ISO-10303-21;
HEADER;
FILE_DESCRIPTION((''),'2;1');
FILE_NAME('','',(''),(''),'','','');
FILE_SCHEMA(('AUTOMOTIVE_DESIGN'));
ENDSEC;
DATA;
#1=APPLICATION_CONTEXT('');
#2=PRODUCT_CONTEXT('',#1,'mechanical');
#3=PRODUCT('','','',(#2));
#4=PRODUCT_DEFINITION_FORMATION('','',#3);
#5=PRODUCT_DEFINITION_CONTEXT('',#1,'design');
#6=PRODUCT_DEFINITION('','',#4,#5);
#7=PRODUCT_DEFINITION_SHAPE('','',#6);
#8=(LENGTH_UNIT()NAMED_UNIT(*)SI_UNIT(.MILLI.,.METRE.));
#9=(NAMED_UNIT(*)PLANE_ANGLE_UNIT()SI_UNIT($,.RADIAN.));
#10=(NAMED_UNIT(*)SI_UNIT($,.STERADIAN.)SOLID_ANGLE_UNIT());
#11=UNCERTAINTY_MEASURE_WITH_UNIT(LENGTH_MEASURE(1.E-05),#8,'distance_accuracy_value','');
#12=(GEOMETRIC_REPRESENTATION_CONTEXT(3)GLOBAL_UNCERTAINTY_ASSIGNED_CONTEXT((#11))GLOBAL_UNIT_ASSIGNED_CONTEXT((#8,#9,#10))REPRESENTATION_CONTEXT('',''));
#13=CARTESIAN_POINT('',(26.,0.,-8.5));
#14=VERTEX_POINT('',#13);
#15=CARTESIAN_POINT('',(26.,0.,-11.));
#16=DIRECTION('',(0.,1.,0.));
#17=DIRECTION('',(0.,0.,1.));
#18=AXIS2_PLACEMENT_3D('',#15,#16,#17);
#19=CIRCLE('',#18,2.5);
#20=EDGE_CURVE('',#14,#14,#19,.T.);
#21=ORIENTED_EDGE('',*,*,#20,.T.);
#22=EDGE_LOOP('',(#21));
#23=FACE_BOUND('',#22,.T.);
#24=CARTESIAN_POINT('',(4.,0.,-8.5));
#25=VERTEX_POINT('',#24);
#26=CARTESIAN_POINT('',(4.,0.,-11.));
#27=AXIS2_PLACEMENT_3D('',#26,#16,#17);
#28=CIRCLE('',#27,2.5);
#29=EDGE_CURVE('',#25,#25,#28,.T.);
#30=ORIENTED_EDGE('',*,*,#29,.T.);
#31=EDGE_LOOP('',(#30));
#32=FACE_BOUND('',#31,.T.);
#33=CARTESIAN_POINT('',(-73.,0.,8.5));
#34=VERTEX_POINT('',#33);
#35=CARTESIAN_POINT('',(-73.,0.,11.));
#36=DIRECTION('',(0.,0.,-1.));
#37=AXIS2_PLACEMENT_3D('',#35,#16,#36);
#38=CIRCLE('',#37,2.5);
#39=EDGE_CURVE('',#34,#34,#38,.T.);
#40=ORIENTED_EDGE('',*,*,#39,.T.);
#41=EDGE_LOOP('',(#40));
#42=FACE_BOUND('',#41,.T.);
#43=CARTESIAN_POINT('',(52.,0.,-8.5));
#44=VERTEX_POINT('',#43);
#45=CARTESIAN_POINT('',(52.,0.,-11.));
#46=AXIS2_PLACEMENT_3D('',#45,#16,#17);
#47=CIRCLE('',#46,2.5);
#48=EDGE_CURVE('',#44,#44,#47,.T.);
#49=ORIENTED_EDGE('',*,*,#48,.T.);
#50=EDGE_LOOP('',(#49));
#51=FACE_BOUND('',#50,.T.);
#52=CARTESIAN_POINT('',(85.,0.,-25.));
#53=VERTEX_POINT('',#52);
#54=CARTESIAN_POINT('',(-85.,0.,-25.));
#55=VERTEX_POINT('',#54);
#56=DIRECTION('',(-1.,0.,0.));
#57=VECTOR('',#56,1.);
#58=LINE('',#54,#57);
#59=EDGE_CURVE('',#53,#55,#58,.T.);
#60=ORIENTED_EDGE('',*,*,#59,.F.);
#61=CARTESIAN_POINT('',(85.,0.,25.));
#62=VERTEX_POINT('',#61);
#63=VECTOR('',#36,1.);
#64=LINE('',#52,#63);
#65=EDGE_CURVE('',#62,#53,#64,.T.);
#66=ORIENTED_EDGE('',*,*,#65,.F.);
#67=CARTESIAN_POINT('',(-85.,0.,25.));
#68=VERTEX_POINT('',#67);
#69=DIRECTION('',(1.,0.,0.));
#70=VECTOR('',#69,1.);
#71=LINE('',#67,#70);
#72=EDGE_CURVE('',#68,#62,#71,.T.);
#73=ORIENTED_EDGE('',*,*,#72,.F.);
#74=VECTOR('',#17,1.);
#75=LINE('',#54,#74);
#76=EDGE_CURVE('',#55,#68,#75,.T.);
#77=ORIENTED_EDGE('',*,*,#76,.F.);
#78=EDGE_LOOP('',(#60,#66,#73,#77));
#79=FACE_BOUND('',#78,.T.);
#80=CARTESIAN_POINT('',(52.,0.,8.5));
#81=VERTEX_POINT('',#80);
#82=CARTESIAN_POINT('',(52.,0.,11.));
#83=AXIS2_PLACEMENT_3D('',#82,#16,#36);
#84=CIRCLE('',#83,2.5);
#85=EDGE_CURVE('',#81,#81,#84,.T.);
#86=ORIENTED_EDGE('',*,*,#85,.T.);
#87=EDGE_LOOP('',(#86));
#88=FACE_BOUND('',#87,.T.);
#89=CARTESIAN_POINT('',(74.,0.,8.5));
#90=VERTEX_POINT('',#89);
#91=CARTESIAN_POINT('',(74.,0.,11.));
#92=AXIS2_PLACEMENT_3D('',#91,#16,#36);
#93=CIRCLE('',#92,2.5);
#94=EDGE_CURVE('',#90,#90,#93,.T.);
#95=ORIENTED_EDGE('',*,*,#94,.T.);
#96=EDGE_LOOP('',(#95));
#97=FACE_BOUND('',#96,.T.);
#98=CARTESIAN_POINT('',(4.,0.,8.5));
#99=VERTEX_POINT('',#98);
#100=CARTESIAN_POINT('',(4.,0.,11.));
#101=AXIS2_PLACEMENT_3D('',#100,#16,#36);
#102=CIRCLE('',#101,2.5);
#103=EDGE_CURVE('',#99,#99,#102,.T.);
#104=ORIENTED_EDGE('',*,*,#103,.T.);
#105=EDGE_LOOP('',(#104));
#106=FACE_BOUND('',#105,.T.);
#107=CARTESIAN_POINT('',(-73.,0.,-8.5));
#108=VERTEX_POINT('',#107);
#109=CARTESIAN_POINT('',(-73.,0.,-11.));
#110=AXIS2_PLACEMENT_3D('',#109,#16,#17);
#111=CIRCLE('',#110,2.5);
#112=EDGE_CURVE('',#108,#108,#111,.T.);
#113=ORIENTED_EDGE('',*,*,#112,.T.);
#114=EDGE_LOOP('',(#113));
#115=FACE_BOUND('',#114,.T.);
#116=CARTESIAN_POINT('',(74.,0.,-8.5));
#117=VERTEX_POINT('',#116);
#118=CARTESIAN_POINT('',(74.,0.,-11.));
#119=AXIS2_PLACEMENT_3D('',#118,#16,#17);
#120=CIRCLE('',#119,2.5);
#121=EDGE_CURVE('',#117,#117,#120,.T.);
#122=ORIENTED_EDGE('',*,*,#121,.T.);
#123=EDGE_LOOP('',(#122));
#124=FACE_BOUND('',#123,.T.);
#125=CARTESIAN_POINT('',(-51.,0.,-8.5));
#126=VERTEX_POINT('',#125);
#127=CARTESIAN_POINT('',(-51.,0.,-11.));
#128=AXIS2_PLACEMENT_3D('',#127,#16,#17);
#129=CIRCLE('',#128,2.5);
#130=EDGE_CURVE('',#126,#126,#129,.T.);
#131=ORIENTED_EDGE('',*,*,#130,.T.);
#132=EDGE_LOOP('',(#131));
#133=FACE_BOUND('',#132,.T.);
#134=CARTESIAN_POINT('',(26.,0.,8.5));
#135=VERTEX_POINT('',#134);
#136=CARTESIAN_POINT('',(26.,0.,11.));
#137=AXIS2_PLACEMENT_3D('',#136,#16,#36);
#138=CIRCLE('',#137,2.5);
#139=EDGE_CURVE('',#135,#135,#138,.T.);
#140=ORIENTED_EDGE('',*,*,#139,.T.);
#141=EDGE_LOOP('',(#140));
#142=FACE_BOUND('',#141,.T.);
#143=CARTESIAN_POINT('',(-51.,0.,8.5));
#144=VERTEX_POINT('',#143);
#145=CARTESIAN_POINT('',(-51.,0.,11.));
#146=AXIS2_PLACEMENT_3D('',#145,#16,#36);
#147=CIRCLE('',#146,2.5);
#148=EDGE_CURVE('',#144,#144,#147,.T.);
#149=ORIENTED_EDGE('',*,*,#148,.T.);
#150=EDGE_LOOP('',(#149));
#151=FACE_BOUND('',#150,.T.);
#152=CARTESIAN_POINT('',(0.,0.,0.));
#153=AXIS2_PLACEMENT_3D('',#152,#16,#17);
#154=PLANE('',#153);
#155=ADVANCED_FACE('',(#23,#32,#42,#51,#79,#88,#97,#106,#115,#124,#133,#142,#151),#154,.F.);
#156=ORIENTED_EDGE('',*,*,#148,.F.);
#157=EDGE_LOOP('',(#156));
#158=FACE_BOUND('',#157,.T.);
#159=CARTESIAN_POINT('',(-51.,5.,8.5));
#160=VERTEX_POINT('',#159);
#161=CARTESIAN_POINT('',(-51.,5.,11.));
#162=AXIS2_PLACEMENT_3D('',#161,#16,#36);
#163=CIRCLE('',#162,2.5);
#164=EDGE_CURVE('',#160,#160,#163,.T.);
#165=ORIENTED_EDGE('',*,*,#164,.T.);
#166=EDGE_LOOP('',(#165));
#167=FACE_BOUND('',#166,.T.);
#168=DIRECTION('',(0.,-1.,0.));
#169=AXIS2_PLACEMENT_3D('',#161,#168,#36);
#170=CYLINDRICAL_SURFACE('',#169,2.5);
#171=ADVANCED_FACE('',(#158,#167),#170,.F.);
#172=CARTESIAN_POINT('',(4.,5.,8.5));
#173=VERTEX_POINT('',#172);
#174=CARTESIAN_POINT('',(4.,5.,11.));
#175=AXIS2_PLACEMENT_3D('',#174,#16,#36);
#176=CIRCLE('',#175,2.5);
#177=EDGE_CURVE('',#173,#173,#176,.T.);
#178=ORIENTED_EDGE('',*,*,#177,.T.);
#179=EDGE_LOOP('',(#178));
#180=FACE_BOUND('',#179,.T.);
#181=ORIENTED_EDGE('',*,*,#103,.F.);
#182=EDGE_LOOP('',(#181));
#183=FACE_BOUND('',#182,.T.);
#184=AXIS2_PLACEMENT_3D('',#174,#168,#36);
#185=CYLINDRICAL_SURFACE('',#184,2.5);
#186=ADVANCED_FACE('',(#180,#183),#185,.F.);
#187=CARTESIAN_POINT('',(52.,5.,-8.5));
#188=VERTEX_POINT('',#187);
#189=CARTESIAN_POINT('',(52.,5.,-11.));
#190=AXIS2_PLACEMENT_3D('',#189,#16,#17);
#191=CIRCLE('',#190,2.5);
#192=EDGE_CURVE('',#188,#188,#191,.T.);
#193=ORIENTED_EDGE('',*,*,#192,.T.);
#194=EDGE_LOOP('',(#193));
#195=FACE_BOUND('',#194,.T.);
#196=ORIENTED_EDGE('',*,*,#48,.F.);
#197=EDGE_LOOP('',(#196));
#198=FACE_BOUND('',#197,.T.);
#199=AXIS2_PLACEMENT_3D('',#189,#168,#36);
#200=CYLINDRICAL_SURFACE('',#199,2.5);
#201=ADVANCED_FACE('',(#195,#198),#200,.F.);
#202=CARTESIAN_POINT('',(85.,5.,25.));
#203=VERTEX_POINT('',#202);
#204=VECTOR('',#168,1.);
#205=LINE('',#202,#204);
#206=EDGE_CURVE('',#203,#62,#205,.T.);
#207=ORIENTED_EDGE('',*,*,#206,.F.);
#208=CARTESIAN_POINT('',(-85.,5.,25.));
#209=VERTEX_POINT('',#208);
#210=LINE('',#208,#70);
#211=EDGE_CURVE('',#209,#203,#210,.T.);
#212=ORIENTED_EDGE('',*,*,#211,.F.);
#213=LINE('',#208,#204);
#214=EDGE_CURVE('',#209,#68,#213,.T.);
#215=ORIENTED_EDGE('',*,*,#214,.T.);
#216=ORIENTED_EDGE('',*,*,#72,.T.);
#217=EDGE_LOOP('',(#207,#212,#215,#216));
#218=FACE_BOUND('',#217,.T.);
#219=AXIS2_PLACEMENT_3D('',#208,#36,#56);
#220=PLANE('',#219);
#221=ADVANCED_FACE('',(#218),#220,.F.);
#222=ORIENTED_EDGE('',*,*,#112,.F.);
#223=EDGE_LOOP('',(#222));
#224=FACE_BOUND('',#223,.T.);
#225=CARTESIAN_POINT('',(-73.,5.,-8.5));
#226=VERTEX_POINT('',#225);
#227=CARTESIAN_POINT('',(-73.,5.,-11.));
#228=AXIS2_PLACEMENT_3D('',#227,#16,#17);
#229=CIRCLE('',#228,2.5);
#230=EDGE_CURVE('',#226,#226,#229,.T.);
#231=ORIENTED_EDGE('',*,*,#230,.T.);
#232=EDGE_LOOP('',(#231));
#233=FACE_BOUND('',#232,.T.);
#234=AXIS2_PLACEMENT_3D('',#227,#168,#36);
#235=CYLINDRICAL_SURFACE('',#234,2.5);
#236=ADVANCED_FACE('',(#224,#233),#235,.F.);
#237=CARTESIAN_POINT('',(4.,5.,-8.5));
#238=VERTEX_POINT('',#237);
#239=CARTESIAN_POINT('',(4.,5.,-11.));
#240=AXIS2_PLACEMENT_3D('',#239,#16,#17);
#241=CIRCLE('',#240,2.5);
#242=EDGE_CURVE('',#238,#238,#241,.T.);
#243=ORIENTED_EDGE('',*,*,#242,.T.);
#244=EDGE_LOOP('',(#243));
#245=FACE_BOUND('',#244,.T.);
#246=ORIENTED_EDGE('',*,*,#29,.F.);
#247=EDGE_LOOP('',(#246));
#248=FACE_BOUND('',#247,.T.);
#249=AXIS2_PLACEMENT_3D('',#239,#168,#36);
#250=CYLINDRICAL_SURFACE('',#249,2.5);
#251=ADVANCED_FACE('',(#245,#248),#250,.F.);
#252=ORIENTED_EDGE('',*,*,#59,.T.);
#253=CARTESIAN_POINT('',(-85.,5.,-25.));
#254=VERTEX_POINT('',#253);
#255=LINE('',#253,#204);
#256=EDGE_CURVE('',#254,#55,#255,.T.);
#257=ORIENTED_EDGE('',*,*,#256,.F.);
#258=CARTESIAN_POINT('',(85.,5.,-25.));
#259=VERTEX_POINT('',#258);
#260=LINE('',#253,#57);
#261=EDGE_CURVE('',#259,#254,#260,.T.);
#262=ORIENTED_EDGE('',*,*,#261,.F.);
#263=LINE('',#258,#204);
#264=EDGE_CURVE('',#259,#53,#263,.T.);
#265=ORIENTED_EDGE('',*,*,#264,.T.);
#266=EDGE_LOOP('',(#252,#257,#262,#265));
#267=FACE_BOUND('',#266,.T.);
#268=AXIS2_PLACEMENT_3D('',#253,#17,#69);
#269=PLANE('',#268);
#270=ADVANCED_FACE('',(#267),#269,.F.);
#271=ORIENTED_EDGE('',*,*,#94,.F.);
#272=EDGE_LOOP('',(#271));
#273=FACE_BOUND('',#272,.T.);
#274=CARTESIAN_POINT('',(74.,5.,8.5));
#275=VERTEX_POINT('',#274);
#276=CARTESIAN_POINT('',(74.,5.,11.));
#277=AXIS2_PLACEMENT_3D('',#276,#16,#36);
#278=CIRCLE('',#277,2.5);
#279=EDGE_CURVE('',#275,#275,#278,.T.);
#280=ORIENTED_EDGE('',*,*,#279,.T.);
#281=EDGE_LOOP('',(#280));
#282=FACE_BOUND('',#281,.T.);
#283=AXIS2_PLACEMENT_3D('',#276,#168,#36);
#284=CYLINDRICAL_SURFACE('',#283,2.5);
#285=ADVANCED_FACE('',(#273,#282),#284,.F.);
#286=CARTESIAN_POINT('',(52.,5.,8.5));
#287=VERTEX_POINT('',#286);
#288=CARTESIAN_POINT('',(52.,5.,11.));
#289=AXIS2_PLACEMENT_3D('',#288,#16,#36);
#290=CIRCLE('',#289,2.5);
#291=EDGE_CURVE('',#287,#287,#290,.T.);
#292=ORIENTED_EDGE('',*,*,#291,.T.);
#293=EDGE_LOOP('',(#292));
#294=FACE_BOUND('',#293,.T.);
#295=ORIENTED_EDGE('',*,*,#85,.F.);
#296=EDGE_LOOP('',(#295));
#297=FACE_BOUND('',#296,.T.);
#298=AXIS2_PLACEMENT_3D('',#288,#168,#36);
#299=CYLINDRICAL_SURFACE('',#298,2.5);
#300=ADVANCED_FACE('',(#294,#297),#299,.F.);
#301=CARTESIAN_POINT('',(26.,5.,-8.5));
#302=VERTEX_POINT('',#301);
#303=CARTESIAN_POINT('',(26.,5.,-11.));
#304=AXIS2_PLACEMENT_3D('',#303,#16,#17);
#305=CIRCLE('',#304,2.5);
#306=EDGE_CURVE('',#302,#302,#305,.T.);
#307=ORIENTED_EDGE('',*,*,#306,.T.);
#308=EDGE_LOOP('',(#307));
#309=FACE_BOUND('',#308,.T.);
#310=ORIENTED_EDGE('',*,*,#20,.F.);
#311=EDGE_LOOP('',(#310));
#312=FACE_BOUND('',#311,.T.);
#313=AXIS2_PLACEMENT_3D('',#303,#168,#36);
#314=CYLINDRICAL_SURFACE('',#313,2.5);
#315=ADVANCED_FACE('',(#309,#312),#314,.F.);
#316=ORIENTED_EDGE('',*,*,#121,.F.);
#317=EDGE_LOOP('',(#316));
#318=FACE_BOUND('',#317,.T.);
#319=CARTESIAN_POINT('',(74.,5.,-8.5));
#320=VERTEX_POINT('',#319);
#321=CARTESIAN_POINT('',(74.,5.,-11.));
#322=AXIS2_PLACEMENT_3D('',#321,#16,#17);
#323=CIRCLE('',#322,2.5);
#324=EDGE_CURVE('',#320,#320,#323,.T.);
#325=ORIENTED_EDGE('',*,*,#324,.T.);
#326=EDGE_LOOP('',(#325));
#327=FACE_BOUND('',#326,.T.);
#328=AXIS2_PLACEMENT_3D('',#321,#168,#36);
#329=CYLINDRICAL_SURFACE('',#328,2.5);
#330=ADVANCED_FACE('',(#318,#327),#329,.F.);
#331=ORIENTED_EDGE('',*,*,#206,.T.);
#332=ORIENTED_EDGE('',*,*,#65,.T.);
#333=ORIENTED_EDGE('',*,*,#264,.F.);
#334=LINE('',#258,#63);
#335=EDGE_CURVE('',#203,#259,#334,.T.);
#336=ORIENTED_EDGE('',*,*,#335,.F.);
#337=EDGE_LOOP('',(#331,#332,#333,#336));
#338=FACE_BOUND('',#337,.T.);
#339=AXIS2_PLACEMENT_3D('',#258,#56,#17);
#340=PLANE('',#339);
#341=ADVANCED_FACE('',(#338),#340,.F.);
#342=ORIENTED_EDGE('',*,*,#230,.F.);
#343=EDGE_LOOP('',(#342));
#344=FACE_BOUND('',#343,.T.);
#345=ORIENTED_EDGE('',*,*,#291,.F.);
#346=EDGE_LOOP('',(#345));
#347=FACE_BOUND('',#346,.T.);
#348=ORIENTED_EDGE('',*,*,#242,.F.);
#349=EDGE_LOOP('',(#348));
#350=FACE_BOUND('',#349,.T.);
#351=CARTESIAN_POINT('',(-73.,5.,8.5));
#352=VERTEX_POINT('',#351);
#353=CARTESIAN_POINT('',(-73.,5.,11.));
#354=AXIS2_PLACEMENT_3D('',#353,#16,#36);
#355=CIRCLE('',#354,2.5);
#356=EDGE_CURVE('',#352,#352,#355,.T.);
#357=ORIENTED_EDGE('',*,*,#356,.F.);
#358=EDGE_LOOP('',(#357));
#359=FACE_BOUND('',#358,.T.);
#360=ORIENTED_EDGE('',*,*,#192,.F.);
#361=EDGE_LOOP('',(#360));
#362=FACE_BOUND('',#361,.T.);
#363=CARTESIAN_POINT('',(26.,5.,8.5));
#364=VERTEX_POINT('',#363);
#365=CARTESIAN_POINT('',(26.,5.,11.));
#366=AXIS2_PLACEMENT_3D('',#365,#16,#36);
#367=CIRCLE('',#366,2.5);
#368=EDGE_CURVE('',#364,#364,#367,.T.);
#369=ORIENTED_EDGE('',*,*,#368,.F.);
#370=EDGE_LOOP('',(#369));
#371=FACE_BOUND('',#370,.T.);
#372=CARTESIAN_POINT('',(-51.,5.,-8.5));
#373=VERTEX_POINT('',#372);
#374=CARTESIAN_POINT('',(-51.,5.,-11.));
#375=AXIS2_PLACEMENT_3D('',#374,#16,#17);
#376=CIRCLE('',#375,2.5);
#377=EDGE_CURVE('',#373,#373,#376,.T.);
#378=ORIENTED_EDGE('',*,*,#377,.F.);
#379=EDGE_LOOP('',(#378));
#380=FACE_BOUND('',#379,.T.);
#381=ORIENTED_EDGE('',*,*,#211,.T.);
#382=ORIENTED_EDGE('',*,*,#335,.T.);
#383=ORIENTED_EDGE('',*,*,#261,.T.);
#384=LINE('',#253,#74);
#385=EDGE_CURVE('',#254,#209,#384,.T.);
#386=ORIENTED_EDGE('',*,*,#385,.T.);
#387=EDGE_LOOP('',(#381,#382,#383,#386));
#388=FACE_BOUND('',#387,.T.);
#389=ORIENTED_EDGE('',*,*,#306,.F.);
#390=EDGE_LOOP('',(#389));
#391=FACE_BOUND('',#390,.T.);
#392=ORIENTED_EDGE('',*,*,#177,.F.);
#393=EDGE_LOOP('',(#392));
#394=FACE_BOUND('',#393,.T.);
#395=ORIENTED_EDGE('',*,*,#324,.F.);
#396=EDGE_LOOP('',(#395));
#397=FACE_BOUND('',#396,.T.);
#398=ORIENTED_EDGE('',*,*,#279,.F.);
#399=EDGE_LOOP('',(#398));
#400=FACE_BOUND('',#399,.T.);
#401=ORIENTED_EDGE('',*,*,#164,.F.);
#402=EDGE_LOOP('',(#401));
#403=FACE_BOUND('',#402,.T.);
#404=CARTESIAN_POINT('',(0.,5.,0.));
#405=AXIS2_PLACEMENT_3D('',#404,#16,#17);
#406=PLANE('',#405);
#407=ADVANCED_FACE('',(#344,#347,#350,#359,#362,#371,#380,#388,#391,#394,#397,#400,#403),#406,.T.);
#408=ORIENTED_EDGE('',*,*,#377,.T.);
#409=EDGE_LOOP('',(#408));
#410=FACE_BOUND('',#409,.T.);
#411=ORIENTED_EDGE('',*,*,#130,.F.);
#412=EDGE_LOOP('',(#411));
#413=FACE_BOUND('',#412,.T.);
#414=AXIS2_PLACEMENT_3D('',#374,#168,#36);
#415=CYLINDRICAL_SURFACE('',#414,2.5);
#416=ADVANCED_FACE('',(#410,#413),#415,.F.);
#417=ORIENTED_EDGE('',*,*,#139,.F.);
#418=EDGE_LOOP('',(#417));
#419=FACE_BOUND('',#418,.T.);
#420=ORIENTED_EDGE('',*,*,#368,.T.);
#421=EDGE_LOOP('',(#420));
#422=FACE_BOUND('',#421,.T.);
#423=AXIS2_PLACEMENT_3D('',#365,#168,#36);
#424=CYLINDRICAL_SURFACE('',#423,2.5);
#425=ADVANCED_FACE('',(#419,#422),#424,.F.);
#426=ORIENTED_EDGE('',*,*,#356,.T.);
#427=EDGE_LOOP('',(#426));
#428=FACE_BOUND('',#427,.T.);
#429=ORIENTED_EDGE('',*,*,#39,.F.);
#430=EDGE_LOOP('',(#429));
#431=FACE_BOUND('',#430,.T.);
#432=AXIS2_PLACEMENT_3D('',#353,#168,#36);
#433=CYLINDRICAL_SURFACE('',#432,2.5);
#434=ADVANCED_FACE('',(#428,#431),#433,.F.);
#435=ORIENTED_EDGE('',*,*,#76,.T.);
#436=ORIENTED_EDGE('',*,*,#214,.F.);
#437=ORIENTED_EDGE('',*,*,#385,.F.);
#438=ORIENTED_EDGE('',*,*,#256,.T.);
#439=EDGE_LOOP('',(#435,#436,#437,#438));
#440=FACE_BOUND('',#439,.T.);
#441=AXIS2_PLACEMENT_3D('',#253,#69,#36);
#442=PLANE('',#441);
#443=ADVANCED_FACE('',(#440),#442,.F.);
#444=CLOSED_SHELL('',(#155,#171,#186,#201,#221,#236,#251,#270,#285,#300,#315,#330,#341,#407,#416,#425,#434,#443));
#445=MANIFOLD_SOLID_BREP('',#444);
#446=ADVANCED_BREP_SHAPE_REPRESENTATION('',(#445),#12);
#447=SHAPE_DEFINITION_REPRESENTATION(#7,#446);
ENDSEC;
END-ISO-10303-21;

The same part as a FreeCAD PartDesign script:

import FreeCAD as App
import Part
import Sketcher
from FreeCAD import Vector
Q = App.Units.Quantity

doc = App.newDocument("Part")
body = doc.addObject("PartDesign::Body", "Body")

# Sketch on XZ plane
sketch1 = body.newObject("Sketcher::SketchObject", "Sketch")
sketch1.AttachmentSupport = (doc.getObject("XZ_Plane"), [""])
sketch1.MapMode = "FlatFace"
sketch1.addGeometry([
    Part.LineSegment(Vector(-85, -25, 0), Vector(-85, 25, 0)),  # 0
    Part.LineSegment(Vector(-85, 25, 0), Vector(85, 25, 0)),  # 1
    Part.LineSegment(Vector(85, 25, 0), Vector(85, -25, 0)),  # 2
    Part.LineSegment(Vector(85, -25, 0), Vector(-85, -25, 0)),  # 3
    Part.Circle(Vector(-73, 11, 0), Vector(0, 0, 1), 2.5),  # 4
    Part.Circle(Vector(-51, 11, 0), Vector(0, 0, 1), 2.5),  # 5
    Part.Circle(Vector(4, 11, 0), Vector(0, 0, 1), 2.5),  # 6
    Part.Circle(Vector(26, 11, 0), Vector(0, 0, 1), 2.5),  # 7
    Part.Circle(Vector(52, 11, 0), Vector(0, 0, 1), 2.5),  # 8
    Part.Circle(Vector(74, 11, 0), Vector(0, 0, 1), 2.5),  # 9
    Part.Circle(Vector(-73, -11, 0), Vector(0, 0, 1), 2.5),  # 10
    Part.Circle(Vector(-51, -11, 0), Vector(0, 0, 1), 2.5),  # 11
    Part.Circle(Vector(4, -11, 0), Vector(0, 0, 1), 2.5),  # 12
    Part.Circle(Vector(26, -11, 0), Vector(0, 0, 1), 2.5),  # 13
    Part.Circle(Vector(52, -11, 0), Vector(0, 0, 1), 2.5),  # 14
    Part.Circle(Vector(74, -11, 0), Vector(0, 0, 1), 2.5),  # 15
], False)
sketch1.addConstraint([
    Sketcher.Constraint("Coincident", 0, 2, 1, 1),
    Sketcher.Constraint("Coincident", 1, 2, 2, 1),
    Sketcher.Constraint("Coincident", 2, 2, 3, 1),
    Sketcher.Constraint("Coincident", 3, 2, 0, 1),
    Sketcher.Constraint("Vertical", 0),
    Sketcher.Constraint("Horizontal", 1),
    Sketcher.Constraint("Vertical", 2),
    Sketcher.Constraint("Horizontal", 3),
    Sketcher.Constraint("Equal", 4, 5),
    Sketcher.Constraint("Equal", 5, 6),
    Sketcher.Constraint("Equal", 6, 7),
    Sketcher.Constraint("Equal", 7, 8),
    Sketcher.Constraint("Equal", 8, 9),
    Sketcher.Constraint("Equal", 9, 10),
    Sketcher.Constraint("Equal", 10, 11),
    Sketcher.Constraint("Equal", 11, 12),
    Sketcher.Constraint("Equal", 12, 13),
    Sketcher.Constraint("Equal", 13, 14),
    Sketcher.Constraint("Equal", 14, 15),
    Sketcher.Constraint("Symmetric", 0, 2, 2, 2, -1, 1),
    Sketcher.Constraint("Symmetric", 4, 3, 10, 3, -1),
    Sketcher.Constraint("Symmetric", 5, 3, 11, 3, -1),
    Sketcher.Constraint("Symmetric", 6, 3, 12, 3, -1),
    Sketcher.Constraint("Symmetric", 7, 3, 13, 3, -1),
    Sketcher.Constraint("Symmetric", 8, 3, 14, 3, -1),
    Sketcher.Constraint("Symmetric", 9, 3, 15, 3, -1),
    Sketcher.Constraint("Horizontal", 4, 3, 5, 3),
    Sketcher.Constraint("Horizontal", 5, 3, 6, 3),
    Sketcher.Constraint("Horizontal", 6, 3, 7, 3),
    Sketcher.Constraint("Horizontal", 7, 3, 8, 3),
    Sketcher.Constraint("Horizontal", 8, 3, 9, 3),
    Sketcher.Constraint("Diameter", 4, Q("5 mm")),
    Sketcher.Constraint("DistanceX", 1, 1, 1, 2, Q("170 mm")),
    Sketcher.Constraint("DistanceY", 0, 1, 0, 2, Q("50 mm")),
    Sketcher.Constraint("DistanceX", 4, 3, -1, 1, Q("73 mm")),
    Sketcher.Constraint("DistanceY", -1, 1, 4, 3, Q("11 mm")),
    Sketcher.Constraint("DistanceX", 5, 3, -1, 1, Q("51 mm")),
    Sketcher.Constraint("DistanceX", -1, 1, 6, 3, Q("4 mm")),
    Sketcher.Constraint("DistanceX", -1, 1, 7, 3, Q("26 mm")),
    Sketcher.Constraint("DistanceX", -1, 1, 8, 3, Q("52 mm")),
    Sketcher.Constraint("DistanceX", -1, 1, 9, 3, Q("74 mm")),
])
pad1 = body.newObject("PartDesign::Pad", "Pad")
pad1.Profile = sketch1
pad1.Length = 5
pad1.Reversed = True

doc.recompute()
